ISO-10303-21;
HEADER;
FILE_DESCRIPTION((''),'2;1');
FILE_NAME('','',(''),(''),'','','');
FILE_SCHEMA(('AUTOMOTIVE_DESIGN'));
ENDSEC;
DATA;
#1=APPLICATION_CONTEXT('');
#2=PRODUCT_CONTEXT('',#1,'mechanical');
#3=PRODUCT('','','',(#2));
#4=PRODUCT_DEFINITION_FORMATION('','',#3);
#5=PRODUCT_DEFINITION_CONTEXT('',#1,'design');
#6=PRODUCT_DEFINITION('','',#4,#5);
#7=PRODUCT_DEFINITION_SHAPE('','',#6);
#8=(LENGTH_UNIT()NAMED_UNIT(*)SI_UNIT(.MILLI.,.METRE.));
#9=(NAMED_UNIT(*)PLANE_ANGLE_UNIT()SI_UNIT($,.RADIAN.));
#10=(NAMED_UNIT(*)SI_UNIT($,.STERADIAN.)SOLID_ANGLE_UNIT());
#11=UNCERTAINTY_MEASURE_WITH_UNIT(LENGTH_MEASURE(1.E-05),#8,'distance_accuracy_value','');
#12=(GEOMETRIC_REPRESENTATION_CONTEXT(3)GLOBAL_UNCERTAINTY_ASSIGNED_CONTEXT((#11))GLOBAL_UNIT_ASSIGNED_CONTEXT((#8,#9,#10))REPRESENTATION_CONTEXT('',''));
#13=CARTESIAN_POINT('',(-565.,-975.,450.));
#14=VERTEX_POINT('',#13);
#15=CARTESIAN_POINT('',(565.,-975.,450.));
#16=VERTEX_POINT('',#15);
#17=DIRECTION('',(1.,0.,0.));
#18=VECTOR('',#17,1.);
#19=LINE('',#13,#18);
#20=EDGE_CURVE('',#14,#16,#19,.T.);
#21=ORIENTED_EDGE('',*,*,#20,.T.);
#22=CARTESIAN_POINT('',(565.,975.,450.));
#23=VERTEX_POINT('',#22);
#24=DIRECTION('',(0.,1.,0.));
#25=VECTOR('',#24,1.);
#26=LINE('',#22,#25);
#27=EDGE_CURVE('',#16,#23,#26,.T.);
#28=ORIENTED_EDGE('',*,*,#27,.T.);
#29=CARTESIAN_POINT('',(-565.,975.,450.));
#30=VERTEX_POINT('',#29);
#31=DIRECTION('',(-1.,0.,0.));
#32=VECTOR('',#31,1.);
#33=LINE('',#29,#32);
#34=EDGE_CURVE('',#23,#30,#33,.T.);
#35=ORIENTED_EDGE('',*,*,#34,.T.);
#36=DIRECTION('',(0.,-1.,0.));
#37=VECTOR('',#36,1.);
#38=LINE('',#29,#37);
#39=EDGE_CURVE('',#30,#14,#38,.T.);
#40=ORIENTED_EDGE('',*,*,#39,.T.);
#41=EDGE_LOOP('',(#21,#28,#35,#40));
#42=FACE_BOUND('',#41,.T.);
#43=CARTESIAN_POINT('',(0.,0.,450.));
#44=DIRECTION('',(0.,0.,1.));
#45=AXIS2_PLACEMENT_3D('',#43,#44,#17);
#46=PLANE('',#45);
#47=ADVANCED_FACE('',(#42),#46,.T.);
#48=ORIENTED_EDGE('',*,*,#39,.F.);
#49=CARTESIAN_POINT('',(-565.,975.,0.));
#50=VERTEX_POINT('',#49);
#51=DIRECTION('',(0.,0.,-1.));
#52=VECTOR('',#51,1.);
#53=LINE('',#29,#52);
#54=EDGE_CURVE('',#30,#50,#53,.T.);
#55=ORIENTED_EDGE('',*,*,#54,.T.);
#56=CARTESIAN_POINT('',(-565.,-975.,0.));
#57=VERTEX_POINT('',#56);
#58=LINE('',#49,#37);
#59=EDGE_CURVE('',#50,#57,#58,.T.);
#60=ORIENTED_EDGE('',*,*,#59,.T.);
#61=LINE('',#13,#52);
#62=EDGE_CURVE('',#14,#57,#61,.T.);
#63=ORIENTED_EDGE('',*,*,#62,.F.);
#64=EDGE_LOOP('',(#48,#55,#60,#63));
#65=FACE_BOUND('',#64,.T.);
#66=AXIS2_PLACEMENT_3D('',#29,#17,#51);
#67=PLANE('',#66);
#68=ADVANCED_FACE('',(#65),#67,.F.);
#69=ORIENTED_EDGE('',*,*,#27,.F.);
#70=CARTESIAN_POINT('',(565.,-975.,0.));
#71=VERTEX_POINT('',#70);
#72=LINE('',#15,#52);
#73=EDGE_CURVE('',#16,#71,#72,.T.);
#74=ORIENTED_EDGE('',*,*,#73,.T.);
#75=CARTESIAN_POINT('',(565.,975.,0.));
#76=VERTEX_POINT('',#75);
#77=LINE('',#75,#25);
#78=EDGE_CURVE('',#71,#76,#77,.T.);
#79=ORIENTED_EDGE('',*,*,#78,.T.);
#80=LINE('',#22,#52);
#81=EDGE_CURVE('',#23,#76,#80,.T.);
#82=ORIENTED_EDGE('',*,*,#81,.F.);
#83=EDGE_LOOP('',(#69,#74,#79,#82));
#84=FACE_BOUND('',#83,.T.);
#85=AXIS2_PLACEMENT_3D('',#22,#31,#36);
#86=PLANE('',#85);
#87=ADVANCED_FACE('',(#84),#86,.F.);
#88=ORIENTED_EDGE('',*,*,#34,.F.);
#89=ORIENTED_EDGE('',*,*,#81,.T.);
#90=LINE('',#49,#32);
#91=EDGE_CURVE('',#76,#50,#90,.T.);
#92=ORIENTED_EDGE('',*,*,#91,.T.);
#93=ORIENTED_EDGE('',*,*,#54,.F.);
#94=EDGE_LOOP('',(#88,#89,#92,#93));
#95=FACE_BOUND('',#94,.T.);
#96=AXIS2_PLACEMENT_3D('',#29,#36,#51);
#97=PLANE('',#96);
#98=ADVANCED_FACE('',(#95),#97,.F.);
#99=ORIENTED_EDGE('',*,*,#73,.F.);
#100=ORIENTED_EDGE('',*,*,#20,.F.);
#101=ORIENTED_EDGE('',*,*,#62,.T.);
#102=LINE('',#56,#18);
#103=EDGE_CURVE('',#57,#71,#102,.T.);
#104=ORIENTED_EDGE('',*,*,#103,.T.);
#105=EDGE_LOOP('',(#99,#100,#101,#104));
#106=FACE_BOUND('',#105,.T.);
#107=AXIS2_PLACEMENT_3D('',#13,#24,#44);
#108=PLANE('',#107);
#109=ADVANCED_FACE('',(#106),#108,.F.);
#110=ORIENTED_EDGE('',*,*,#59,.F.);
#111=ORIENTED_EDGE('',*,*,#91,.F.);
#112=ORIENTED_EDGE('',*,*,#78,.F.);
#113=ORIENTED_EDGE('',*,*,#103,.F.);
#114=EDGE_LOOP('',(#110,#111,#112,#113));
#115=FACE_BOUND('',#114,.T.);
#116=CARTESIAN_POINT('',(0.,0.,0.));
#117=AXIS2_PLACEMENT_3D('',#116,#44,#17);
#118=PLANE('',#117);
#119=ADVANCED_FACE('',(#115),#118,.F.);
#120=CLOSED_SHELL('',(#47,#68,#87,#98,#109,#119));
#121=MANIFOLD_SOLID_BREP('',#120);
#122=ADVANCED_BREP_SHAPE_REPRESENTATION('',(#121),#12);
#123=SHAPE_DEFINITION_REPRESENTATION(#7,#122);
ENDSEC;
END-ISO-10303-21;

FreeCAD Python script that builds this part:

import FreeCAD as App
import Part
import Sketcher

V = App.Vector

doc = App.newDocument("Part")
params = doc.addObject("Spreadsheet::Sheet", "Params")
for row, (alias, value) in enumerate([
    ("sketch1_width", "1130 mm"),
    ("sketch1_height", "1950 mm"),
    ("pad1_length", "450 mm"),
], start=1):
    params.set(f"A{row}", alias)
    params.set(f"B{row}", "=" + value)
    params.setAlias(f"B{row}", alias)

body = doc.addObject("PartDesign::Body", "Body")

# Sketch on XY plane
sketch1 = body.newObject("Sketcher::SketchObject", "Sketch")
sketch1.AttachmentSupport = (doc.getObject("XY_Plane"), [""])
sketch1.MapMode = "FlatFace"
sketch1.addGeometry(Part.LineSegment(V(-565, 975, 0), V(-565, -975, 0)), False)
sketch1.addGeometry(Part.LineSegment(V(-565, -975, 0), V(565, -975, 0)), False)
sketch1.addGeometry(Part.LineSegment(V(565, -975, 0), V(565, 975, 0)), False)
sketch1.addGeometry(Part.LineSegment(V(565, 975, 0), V(-565, 975, 0)), False)
sketch1.addConstraint(Sketcher.Constraint("Coincident", 0, 2, 1, 1))
sketch1.addConstraint(Sketcher.Constraint("Coincident", 1, 2, 2, 1))
sketch1.addConstraint(Sketcher.Constraint("Coincident", 2, 2, 3, 1))
sketch1.addConstraint(Sketcher.Constraint("Coincident", 3, 2, 0, 1))
sketch1.addConstraint(Sketcher.Constraint("Vertical", 0))
sketch1.addConstraint(Sketcher.Constraint("Horizontal", 1))
sketch1.addConstraint(Sketcher.Constraint("Vertical", 2))
sketch1.addConstraint(Sketcher.Constraint("Horizontal", 3))
sketch1.addConstraint(Sketcher.Constraint("Symmetric", 0, 2, 2, 2, -1, 1))
sketch1.addConstraint(Sketcher.Constraint("DistanceX", 1, 1, 1, 2, 1130.0))
sketch1.addConstraint(Sketcher.Constraint("DistanceY", 0, 2, 0, 1, 1950.0))
sketch1.setExpression("Constraints[9]", "Params.sketch1_width")
sketch1.setExpression("Constraints[10]", "Params.sketch1_height")
pad1 = body.newObject("PartDesign::Pad", "Pad")
pad1.Profile = sketch1
pad1.setExpression("Length", "Params.pad1_length")

doc.recompute()
